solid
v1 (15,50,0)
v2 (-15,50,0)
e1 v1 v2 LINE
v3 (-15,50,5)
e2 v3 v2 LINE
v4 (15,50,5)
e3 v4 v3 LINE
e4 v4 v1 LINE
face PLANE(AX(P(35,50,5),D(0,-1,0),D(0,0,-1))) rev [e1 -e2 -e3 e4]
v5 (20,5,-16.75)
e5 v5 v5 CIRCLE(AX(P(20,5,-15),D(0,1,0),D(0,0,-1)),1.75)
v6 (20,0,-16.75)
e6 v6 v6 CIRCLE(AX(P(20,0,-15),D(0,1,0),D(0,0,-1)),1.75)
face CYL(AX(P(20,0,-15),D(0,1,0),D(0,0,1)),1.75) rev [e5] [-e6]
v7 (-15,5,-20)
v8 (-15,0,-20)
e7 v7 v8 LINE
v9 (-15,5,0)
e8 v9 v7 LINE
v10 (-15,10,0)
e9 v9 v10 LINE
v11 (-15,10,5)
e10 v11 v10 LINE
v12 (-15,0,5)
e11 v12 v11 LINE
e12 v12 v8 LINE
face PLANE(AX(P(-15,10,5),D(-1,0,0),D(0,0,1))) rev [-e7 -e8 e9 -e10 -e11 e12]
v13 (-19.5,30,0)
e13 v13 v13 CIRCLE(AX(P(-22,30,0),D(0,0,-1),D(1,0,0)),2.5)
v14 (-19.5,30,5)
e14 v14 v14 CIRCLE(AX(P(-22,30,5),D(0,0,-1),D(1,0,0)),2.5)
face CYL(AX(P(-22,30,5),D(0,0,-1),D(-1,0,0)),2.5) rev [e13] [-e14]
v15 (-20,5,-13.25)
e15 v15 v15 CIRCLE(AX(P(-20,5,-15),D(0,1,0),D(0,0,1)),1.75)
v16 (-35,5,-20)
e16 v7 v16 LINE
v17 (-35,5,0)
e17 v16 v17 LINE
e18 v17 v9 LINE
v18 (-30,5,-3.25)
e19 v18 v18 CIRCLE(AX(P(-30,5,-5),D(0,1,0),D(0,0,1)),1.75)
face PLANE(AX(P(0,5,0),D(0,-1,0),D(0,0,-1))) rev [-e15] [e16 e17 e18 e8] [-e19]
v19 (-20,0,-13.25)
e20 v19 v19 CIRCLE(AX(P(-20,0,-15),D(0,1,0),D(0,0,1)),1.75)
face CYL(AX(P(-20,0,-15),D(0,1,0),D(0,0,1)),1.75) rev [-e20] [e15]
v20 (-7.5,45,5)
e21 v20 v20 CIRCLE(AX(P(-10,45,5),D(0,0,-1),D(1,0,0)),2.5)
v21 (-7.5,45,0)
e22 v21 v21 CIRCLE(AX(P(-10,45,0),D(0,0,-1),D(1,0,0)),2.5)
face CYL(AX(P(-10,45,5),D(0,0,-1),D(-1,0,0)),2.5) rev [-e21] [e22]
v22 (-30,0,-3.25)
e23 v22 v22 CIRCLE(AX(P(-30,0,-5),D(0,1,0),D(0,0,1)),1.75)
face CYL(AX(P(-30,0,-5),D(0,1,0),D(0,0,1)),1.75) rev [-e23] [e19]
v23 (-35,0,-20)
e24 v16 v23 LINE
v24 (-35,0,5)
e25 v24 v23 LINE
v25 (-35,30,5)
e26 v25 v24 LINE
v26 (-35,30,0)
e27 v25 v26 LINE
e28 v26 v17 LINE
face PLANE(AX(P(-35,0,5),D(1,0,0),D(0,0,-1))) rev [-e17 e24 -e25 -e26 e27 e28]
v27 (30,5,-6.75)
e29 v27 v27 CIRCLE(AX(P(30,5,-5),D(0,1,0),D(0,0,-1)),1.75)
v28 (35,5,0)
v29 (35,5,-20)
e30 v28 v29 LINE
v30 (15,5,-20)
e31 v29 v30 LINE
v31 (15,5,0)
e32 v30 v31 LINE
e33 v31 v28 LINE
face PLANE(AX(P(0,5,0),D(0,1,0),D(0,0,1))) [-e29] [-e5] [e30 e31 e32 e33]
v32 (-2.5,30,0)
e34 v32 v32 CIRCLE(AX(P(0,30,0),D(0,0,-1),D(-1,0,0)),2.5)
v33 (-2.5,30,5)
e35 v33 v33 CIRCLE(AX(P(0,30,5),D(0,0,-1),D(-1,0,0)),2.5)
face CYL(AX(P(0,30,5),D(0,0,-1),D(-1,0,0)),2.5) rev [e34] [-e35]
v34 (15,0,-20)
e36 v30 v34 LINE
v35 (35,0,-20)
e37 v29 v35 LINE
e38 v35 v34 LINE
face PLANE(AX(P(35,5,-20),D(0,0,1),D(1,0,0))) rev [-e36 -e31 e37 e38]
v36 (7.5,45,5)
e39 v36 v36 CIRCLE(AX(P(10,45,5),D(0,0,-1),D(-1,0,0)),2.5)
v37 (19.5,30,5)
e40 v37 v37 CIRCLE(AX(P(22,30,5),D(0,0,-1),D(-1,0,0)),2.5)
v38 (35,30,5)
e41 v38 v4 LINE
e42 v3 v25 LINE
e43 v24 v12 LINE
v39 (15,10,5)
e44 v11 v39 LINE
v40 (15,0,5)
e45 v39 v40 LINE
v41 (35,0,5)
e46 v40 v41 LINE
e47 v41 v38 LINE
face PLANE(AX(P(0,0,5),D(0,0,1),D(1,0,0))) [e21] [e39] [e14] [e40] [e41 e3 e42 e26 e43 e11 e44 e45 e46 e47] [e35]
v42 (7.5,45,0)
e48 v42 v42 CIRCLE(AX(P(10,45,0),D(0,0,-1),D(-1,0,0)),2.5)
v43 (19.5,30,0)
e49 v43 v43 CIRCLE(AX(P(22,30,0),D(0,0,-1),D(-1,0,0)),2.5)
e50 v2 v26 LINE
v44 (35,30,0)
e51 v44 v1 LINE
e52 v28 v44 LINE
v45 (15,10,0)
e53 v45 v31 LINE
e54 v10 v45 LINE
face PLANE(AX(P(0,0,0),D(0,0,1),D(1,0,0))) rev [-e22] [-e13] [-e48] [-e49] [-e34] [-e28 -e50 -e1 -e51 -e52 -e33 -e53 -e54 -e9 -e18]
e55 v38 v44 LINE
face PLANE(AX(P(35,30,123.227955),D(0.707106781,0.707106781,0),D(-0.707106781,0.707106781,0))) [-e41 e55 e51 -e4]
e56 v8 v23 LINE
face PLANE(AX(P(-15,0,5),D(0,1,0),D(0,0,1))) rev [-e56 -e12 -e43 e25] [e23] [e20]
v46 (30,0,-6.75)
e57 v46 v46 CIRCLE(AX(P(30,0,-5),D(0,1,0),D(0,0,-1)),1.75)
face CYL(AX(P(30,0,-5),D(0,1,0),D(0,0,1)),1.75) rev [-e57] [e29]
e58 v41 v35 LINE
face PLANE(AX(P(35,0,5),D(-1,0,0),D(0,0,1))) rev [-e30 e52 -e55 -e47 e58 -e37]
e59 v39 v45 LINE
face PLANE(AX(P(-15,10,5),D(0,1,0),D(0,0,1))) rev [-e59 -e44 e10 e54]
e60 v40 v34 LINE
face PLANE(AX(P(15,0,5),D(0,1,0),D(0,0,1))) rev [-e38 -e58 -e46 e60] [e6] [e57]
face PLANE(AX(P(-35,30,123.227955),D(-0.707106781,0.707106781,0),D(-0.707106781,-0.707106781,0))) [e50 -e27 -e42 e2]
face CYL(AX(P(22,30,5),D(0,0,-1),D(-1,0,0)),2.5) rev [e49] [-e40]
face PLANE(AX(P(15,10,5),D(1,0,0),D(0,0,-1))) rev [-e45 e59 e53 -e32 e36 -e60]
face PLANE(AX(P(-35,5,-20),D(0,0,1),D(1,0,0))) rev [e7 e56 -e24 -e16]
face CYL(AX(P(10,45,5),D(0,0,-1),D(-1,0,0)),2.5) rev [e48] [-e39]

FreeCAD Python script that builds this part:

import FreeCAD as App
import Part
import Sketcher

V = App.Vector


def add_polygon(sketch, points):
    """Adds a closed chain of lines whose ends are joined by coincident constraints."""
    first, n = sketch.GeometryCount, len(points)
    for a, b in zip(points, points[1:] + points[:1]):
        sketch.addGeometry(Part.LineSegment(App.Vector(*a, 0), App.Vector(*b, 0)), False)
    for i in range(n):
        sketch.addConstraint(Sketcher.Constraint("Coincident", first + i, 2, first + (i + 1) % n, 1))

doc = App.newDocument("Part")
body = doc.addObject("PartDesign::Body", "Body")

# Sketch on XY plane
sketch1 = body.newObject("Sketcher::SketchObject", "Sketch")
sketch1.AttachmentSupport = (doc.getObject("XY_Plane"), [""])
sketch1.MapMode = "FlatFace"
add_polygon(sketch1, [(-15, 10), (15, 10), (15, 0), (35, 0), (35, 50), (-35, 50), (-35, 0), (-15, 0)])  # lines 0-7
sketch1.addConstraint([
    Sketcher.Constraint("Horizontal", 0),
    Sketcher.Constraint("Vertical", 1),
    Sketcher.Constraint("Horizontal", 2),
    Sketcher.Constraint("Vertical", 3),
    Sketcher.Constraint("Horizontal", 4),
    Sketcher.Constraint("Vertical", 5),
    Sketcher.Constraint("Horizontal", 6),
    Sketcher.Constraint("Vertical", 7),
    Sketcher.Constraint("Symmetric", 2, 2, 5, 2, -1, 1),
    Sketcher.Constraint("Symmetric", 1, 2, 6, 2, -2),
    Sketcher.Constraint("DistanceX", 0, 1, 0, 2, 30.0),
    Sketcher.Constraint("DistanceX", 2, 1, 2, 2, 20.0),
    Sketcher.Constraint("DistanceY", 1, 2, 1, 1, 10.0),
    Sketcher.Constraint("DistanceY", 3, 1, 3, 2, 50.0),
])
pad1 = body.newObject("PartDesign::Pad", "Pad")
pad1.Profile = sketch1
pad1.Length = 5

# Sketch on XZ plane
sketch2 = body.newObject("Sketcher::SketchObject", "Sketch001")
sketch2.AttachmentSupport = (doc.getObject("XZ_Plane"), [""])
sketch2.MapMode = "FlatFace"
add_polygon(sketch2, [(-35, -20), (-35, 0), (-15, 0), (-15, -20)])  # lines 0-3
add_polygon(sketch2, [(15, -20), (15, 0), (35, 0), (35, -20)])  # lines 4-7
sketch2.addConstraint([
    Sketcher.Constraint("Vertical", 0),
    Sketcher.Constraint("Horizontal", 1),
    Sketcher.Constraint("Vertical", 2),
    Sketcher.Constraint("Horizontal", 3),
    Sketcher.Constraint("Vertical", 4),
    Sketcher.Constraint("Horizontal", 5),
    Sketcher.Constraint("Vertical", 6),
    Sketcher.Constraint("Horizontal", 7),
    Sketcher.Constraint("Symmetric", 1, 2, 4, 2, -1, 1),
    Sketcher.Constraint("Symmetric", 0, 2, 5, 2, -2),
    Sketcher.Constraint("Horizontal", 3, 2, 6, 2),
    Sketcher.Constraint("Equal", 7, 0),
    Sketcher.Constraint("DistanceX", 1, 1, 1, 2, 20.0),
    Sketcher.Constraint("DistanceX", 0, 2, -1, 1, 35.0),
])
pad2 = body.newObject("PartDesign::Pad", "Pad001")
pad2.Profile = sketch2
pad2.Length = 5
pad2.Reversed = True

# Sketch on XZ plane
sketch3 = body.newObject("Sketcher::SketchObject", "Sketch002")
sketch3.AttachmentSupport = (doc.getObject("XZ_Plane"), [""])
sketch3.MapMode = "FlatFace"
sketch3.AttachmentOffset = App.Placement(V(0, 0, -5), App.Rotation())
sketch3.addGeometry([
    Part.Circle(V(-30, -5, 0), V(0, 0, 1), 1.8),
    Part.Circle(V(-20, -15, 0), V(0, 0, 1), 1.8),
    Part.Circle(V(20, -15, 0), V(0, 0, 1), 1.8),
    Part.Circle(V(30, -5, 0), V(0, 0, 1), 1.8),
], False)
sketch3.addConstraint([
    Sketcher.Constraint("Equal", 0, 1),
    Sketcher.Constraint("Equal", 1, 2),
    Sketcher.Constraint("Equal", 2, 3),
    Sketcher.Constraint("Symmetric", 1, 3, 2, 3, -2),
    Sketcher.Constraint("Symmetric", 0, 3, 3, 3, -2),
    Sketcher.Constraint("Diameter", 0, 3.5),
    Sketcher.Constraint("DistanceX", 0, 3, -1, 1, 30.0),
    Sketcher.Constraint("DistanceY", 0, 3, -1, 1, 5.0),
    Sketcher.Constraint("DistanceX", 1, 3, -1, 1, 20.0),
    Sketcher.Constraint("DistanceY", 1, 3, -1, 1, 15.0),
])
pocket1 = body.newObject("PartDesign::Pocket", "Pocket")
pocket1.Profile = sketch3
pocket1.Type = "ThroughAll"
pocket1.Reversed = True

# Sketch on XY plane
sketch4 = body.newObject("Sketcher::SketchObject", "Sketch003")
sketch4.AttachmentSupport = (doc.getObject("XY_Plane"), [""])
sketch4.MapMode = "FlatFace"
sketch4.AttachmentOffset = App.Placement(V(0, 0, 5), App.Rotation())
add_polygon(sketch4, [(15, 50), (35, 30), (35, 50)])  # lines 0-2
add_polygon(sketch4, [(-35, 30), (-15, 50), (-35, 50)])  # lines 3-5
sketch4.addConstraint([
    Sketcher.Constraint("Vertical", 1),
    Sketcher.Constraint("Horizontal", 2),
    Sketcher.Constraint("Horizontal", 4),
    Sketcher.Constraint("Vertical", 5),
    Sketcher.Constraint("Symmetric", 2, 2, 3, 2, -2),
    Sketcher.Constraint("Symmetric", 0, 2, 5, 2, -2),
    Sketcher.Constraint("Perpendicular", 0, 3),
    Sketcher.Constraint("DistanceX", 2, 2, 2, 1, 20.0),
    Sketcher.Constraint("DistanceX", -1, 1, 0, 2, 35.0),
    Sketcher.Constraint("DistanceY", -1, 1, 0, 2, 30.0),
])
pocket2 = body.newObject("PartDesign::Pocket", "Pocket001")
pocket2.Profile = sketch4
pocket2.Type = "ThroughAll"
pocket2.Midplane = True

# Sketch on XY plane
sketch5 = body.newObject("Sketcher::SketchObject", "Sketch004")
sketch5.AttachmentSupport = (doc.getObject("XY_Plane"), [""])
sketch5.MapMode = "FlatFace"
sketch5.addGeometry([
    Part.Circle(V(22, 30, 0), V(0, 0, 1), 2.5),  # 0
    Part.Circle(V(0, 30, 0), V(0, 0, 1), 2.5),  # 1
    Part.Circle(V(10, 45, 0), V(0, 0, 1), 2.5),  # 2
    Part.Circle(V(-10, 45, 0), V(0, 0, 1), 2.5),  # 3
    Part.Circle(V(-22, 30, 0), V(0, 0, 1), 2.5),  # 4
], False)
sketch5.addConstraint([
    Sketcher.Constraint("Equal", 0, 1),
    Sketcher.Constraint("Equal", 1, 2),
    Sketcher.Constraint("Equal", 2, 3),
    Sketcher.Constraint("Equal", 3, 4),
    Sketcher.Constraint("Symmetric", 2, 3, 3, 3, -2),
    Sketcher.Constraint("Symmetric", 0, 3, 4, 3, -2),
    Sketcher.Constraint("PointOnObject", 1, 3, -2),
    Sketcher.Constraint("Horizontal", 0, 3, 1, 3),
    Sketcher.Constraint("Diameter", 0, 5.0),
    Sketcher.Constraint("DistanceX", -1, 1, 0, 3, 22.0),
    Sketcher.Constraint("DistanceY", -1, 1, 0, 3, 30.0),
    Sketcher.Constraint("DistanceX", -1, 1, 2, 3, 10.0),
    Sketcher.Constraint("DistanceY", -1, 1, 2, 3, 45.0),
])
pocket3 = body.newObject("PartDesign::Pocket", "Pocket002")
pocket3.Profile = sketch5
pocket3.Type = "ThroughAll"
pocket3.Reversed = True

doc.recompute()
